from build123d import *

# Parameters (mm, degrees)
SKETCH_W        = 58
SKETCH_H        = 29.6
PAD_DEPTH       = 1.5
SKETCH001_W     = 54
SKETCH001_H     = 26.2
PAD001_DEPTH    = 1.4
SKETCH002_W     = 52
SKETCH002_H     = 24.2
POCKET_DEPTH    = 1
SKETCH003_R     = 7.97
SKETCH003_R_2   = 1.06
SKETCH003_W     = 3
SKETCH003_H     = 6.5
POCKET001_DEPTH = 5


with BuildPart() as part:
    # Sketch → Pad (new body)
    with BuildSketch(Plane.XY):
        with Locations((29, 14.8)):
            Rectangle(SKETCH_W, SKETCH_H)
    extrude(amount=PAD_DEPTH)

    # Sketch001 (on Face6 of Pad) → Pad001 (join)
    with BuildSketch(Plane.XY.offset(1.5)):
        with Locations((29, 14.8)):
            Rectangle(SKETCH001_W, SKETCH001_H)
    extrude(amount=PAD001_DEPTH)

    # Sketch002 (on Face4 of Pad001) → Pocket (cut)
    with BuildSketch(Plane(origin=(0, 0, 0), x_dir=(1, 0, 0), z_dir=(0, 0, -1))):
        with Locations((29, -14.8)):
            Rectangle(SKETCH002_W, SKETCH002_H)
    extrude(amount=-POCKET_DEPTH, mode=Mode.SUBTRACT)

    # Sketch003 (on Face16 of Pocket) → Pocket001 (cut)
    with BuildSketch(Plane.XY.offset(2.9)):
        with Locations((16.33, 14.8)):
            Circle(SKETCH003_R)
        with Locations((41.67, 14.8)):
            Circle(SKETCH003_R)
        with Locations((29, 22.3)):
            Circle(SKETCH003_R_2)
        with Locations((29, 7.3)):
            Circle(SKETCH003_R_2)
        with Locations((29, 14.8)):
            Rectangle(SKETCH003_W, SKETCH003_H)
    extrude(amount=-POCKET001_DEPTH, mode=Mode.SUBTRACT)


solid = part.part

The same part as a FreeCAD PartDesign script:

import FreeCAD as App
import Part
import Sketcher

V = App.Vector


def add_polygon(sketch, points):
    """Adds a closed chain of lines whose ends are joined by coincident constraints."""
    first, n = sketch.GeometryCount, len(points)
    for a, b in zip(points, points[1:] + points[:1]):
        sketch.addGeometry(Part.LineSegment(App.Vector(*a, 0), App.Vector(*b, 0)), False)
    for i in range(n):
        sketch.addConstraint(Sketcher.Constraint("Coincident", first + i, 2, first + (i + 1) % n, 1))

doc = App.newDocument("Part")
body = doc.addObject("PartDesign::Body", "Body")

sketch1 = doc.addObject("Sketcher::SketchObject", "Sketch")
body.addObject(sketch1)
sketch1.AttachmentSupport = (doc.XY_Plane, [""])
sketch1.MapMode = "FlatFace"
add_polygon(sketch1, [(0, 30), (0, 0), (58, 0), (58, 30)])
sketch1.addConstraint([
    Sketcher.Constraint("Vertical", 0),
    Sketcher.Constraint("Horizontal", 1),
    Sketcher.Constraint("Vertical", 2),
    Sketcher.Constraint("Horizontal", 3),
    Sketcher.Constraint("Coincident", 0, 2, -1, 1),
    Sketcher.Constraint("DistanceX", 1, 1, 1, 2, 58.0),
    Sketcher.Constraint("DistanceY", 0, 2, 0, 1, 29.6),
])
pad1 = doc.addObject("PartDesign::Pad", "Pad")
body.addObject(pad1)
pad1.Profile = sketch1
pad1.Length = 1.5

sketch2 = doc.addObject("Sketcher::SketchObject", "Sketch001")
body.addObject(sketch2)
sketch2.AttachmentSupport = (doc.XY_Plane, [""])
sketch2.MapMode = "FlatFace"
sketch2.AttachmentOffset = App.Placement(V(0, 0, 1.5), App.Rotation())
add_polygon(sketch2, [(2, 28), (2, 2), (56, 2), (56, 28)])
sketch2.addConstraint([
    Sketcher.Constraint("Vertical", 0),
    Sketcher.Constraint("Horizontal", 1),
    Sketcher.Constraint("Vertical", 2),
    Sketcher.Constraint("Horizontal", 3),
    Sketcher.Constraint("DistanceX", 1, 1, 1, 2, 54.0),
    Sketcher.Constraint("DistanceY", 0, 2, 0, 1, 26.2),
    Sketcher.Constraint("DistanceX", -1, 1, 0, 2, 2.0),
    Sketcher.Constraint("DistanceY", -1, 1, 0, 2, 1.7),
])
pad2 = doc.addObject("PartDesign::Pad", "Pad001")
body.addObject(pad2)
pad2.Profile = sketch2
pad2.Length = 1.4

sketch3 = doc.addObject("Sketcher::SketchObject", "Sketch002")
body.addObject(sketch3)
sketch3.AttachmentSupport = (doc.XY_Plane, [""])
sketch3.MapMode = "FlatFace"
add_polygon(sketch3, [(3, 3), (3, 27), (55, 27), (55, 3)])
sketch3.addConstraint([
    Sketcher.Constraint("Vertical", 0),
    Sketcher.Constraint("Horizontal", 1),
    Sketcher.Constraint("Vertical", 2),
    Sketcher.Constraint("Horizontal", 3),
    Sketcher.Constraint("DistanceX", 1, 1, 1, 2, 52.0),
    Sketcher.Constraint("DistanceY", 0, 1, 0, 2, 24.2),
    Sketcher.Constraint("DistanceX", -1, 1, 0, 2, 3.0),
    Sketcher.Constraint("DistanceY", -1, 1, 0, 2, 26.9),
])
pocket1 = doc.addObject("PartDesign::Pocket", "Pocket")
body.addObject(pocket1)
pocket1.Profile = sketch3
pocket1.Length = 1
pocket1.Reversed = True

sketch4 = doc.addObject("Sketcher::SketchObject", "Sketch003")
body.addObject(sketch4)
sketch4.AttachmentSupport = (doc.XY_Plane, [""])
sketch4.MapMode = "FlatFace"
sketch4.AttachmentOffset = App.Placement(V(0, 0, 2.9), App.Rotation())
sketch4.addGeometry(Part.Circle(V(16.3, 14.8, 0), V(0, 0, 1), 8), False)
sketch4.addGeometry(Part.Circle(V(41.7, 14.8, 0), V(0, 0, 1), 8), False)
sketch4.addGeometry(Part.Circle(V(29, 22.3, 0), V(0, 0, 1), 1.1), False)
sketch4.addGeometry(Part.Circle(V(29, 7.3, 0), V(0, 0, 1), 1.1), False)
add_polygon(sketch4, [(27.5, 18.1), (27.5, 11.6), (30.5, 11.6), (30.5, 18.1)])
sketch4.addConstraint([
    Sketcher.Constraint("Vertical", 4),
    Sketcher.Constraint("Horizontal", 5),
    Sketcher.Constraint("Vertical", 6),
    Sketcher.Constraint("Horizontal", 7),
    Sketcher.Constraint("Equal", 0, 1),
    Sketcher.Constraint("Equal", 2, 3),
    Sketcher.Constraint("Horizontal", 0, 3, 1, 3),
    Sketcher.Constraint("Vertical", 2, 3, 3, 3),
    Sketcher.Constraint("Diameter", 0, 15.94),
    Sketcher.Constraint("Diameter", 2, 2.12),
    Sketcher.Constraint("DistanceX", 5, 1, 5, 2, 3.0),
    Sketcher.Constraint("DistanceY", 4, 2, 4, 1, 6.5),
    Sketcher.Constraint("DistanceX", -1, 1, 2, 3, 29.0),
    Sketcher.Constraint("DistanceY", 3, 3, 2, 3, 15.0),
    Sketcher.Constraint("DistanceY", -1, 1, 0, 3, 14.8),
    Sketcher.Constraint("DistanceY", -1, 1, 2, 3, 22.3),
    Sketcher.Constraint("DistanceX", -1, 1, 4, 2, 27.5),
    Sketcher.Constraint("DistanceX", -1, 1, 0, 3, 16.33),
    Sketcher.Constraint("DistanceX", -1, 1, 1, 3, 41.67),
    Sketcher.Constraint("DistanceY", -1, 1, 4, 2, 11.55),
])
pocket2 = doc.addObject("PartDesign::Pocket", "Pocket001")
body.addObject(pocket2)
pocket2.Profile = sketch4
pocket2.Length = 5

doc.recompute()
